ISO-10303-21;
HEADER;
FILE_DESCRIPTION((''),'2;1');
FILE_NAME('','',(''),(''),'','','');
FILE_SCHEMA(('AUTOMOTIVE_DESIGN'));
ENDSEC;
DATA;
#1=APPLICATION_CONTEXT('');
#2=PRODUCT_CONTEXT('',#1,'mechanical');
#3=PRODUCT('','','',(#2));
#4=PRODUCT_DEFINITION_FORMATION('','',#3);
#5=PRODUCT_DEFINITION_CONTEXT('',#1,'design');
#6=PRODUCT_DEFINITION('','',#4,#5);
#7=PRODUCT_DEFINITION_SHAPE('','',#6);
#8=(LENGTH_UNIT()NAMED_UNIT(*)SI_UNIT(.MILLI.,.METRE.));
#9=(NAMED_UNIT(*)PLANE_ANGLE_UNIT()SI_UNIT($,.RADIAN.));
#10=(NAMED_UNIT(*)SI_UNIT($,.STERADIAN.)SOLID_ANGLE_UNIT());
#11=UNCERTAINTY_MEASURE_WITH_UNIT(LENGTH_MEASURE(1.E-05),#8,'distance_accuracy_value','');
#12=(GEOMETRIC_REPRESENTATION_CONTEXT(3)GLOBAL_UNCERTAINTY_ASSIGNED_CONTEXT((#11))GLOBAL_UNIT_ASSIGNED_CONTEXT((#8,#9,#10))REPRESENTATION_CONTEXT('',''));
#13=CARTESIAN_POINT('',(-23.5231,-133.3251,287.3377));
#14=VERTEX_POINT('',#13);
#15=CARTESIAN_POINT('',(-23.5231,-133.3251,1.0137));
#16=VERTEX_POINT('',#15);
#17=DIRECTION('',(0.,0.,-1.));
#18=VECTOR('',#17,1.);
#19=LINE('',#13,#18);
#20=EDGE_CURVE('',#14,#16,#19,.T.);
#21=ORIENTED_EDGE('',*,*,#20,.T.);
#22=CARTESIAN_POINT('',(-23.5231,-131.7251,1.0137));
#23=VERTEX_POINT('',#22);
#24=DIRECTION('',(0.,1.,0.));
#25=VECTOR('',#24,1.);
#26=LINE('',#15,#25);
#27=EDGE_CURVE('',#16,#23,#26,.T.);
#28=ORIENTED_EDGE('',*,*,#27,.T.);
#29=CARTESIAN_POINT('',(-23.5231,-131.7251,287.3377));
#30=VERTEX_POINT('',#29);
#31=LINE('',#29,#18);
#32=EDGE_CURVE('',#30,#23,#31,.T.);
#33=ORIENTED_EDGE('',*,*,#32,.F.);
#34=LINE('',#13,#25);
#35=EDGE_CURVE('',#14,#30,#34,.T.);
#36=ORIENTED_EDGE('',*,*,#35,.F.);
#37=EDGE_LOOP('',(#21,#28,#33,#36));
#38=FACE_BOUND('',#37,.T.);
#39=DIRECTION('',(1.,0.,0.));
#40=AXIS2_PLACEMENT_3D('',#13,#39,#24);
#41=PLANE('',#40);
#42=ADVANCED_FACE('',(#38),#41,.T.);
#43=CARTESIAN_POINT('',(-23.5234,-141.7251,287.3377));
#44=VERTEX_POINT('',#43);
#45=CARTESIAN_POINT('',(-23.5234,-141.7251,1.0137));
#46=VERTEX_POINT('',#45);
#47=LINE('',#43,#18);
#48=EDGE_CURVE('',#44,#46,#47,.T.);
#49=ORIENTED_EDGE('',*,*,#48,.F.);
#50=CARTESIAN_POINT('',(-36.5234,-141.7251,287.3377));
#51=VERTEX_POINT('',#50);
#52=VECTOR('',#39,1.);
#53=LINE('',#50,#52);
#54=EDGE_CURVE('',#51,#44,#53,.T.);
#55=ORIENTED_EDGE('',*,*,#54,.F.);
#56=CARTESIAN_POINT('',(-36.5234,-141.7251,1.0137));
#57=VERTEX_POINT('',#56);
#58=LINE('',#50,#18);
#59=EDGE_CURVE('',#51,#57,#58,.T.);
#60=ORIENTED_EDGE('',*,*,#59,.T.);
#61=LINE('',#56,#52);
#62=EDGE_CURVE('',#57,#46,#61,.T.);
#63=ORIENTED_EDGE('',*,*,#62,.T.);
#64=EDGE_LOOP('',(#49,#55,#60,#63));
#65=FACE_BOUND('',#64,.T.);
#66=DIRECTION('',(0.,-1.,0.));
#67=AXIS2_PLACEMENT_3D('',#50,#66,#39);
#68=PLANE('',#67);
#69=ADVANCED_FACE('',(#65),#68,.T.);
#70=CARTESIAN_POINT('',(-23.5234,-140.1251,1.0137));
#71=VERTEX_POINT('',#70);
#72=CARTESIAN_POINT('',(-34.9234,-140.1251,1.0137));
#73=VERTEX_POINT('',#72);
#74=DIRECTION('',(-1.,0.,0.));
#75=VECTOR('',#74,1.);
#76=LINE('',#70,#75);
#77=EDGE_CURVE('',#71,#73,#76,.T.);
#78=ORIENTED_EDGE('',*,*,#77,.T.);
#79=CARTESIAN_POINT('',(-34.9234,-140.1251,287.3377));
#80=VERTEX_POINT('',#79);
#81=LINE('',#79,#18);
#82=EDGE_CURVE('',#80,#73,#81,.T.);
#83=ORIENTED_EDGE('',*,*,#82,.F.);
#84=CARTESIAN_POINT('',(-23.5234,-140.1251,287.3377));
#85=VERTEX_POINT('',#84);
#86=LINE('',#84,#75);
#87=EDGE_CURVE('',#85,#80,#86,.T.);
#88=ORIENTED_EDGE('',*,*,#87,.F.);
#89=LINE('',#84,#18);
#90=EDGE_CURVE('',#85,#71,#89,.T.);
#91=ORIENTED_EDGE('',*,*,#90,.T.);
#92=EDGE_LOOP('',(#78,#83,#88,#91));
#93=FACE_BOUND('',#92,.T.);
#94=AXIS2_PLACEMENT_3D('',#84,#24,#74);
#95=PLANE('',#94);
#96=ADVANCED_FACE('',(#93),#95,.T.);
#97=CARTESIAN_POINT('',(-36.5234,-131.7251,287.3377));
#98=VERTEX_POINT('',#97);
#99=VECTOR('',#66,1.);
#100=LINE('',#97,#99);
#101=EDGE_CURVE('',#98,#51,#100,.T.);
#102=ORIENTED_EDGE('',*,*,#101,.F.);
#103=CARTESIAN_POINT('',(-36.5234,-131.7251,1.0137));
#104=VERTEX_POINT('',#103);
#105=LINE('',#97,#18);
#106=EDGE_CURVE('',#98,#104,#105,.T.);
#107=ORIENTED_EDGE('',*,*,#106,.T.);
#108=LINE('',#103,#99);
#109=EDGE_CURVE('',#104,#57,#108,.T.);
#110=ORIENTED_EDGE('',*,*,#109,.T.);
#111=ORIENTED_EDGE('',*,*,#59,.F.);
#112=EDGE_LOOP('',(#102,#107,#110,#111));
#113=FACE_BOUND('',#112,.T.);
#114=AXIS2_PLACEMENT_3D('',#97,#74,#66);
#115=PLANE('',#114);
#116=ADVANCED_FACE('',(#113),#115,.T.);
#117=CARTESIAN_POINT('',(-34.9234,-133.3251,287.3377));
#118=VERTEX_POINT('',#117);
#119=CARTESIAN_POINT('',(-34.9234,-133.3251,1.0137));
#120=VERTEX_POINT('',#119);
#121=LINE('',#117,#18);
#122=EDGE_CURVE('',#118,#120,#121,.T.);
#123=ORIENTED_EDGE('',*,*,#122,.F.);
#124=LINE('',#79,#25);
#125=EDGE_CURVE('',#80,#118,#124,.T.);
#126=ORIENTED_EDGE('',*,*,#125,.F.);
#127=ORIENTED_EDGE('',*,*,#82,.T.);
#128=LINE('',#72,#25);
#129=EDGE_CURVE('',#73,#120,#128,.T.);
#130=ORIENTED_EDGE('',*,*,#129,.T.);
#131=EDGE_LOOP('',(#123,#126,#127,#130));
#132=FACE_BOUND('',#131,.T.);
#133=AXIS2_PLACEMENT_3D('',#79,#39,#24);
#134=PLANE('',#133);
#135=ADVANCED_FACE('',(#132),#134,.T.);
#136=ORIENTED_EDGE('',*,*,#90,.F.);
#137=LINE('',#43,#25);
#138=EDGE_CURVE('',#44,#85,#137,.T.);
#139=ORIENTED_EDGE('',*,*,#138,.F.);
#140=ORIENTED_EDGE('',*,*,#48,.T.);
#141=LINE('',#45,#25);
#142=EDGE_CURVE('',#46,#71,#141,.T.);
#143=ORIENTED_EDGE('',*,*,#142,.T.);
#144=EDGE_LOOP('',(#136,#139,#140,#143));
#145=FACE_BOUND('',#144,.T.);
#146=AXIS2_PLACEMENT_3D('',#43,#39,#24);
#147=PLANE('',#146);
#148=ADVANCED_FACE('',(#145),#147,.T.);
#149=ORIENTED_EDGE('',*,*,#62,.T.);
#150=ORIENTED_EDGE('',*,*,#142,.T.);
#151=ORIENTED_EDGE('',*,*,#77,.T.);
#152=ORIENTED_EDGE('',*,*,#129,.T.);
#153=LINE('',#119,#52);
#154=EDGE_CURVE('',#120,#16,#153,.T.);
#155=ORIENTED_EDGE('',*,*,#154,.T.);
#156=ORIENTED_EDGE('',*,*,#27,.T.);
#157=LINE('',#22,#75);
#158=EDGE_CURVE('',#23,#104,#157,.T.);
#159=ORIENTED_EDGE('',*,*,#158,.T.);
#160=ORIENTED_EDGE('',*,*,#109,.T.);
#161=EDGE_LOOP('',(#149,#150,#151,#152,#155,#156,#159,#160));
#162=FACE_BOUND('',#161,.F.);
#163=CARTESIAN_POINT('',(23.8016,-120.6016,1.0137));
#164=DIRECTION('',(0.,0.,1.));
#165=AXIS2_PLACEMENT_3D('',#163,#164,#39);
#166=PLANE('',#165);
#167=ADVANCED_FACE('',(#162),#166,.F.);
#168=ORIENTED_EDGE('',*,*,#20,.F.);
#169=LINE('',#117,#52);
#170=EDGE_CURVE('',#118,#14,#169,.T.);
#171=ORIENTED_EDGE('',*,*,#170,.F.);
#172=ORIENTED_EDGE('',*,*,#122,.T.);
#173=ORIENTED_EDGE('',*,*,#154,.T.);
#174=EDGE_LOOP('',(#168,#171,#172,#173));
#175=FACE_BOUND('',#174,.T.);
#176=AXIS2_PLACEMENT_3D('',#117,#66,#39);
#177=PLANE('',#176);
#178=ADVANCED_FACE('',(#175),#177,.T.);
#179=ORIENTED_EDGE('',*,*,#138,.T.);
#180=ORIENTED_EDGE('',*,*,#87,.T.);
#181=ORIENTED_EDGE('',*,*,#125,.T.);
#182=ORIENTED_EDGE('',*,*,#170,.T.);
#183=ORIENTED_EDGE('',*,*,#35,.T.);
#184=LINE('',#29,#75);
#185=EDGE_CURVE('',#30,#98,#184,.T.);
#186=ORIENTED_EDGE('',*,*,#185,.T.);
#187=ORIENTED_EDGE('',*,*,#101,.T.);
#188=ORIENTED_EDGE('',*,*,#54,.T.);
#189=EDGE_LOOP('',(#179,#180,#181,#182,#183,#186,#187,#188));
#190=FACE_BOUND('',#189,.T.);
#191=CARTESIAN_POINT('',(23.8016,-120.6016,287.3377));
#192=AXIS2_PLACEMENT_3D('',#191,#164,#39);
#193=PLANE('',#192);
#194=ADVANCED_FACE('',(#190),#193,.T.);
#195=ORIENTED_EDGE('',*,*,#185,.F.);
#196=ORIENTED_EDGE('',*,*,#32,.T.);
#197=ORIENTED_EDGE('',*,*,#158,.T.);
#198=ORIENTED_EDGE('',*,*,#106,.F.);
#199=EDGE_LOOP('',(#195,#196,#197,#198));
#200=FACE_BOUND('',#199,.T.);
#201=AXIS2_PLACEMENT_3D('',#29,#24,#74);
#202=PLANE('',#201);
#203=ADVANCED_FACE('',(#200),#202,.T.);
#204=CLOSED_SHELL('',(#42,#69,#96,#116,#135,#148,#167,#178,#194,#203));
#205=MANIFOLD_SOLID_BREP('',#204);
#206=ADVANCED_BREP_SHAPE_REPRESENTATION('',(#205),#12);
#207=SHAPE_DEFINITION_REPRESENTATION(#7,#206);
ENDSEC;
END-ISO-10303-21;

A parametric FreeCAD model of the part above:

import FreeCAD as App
import Part
import Sketcher
from FreeCAD import Vector


def add_polygon(sketch, points):
    """Adds a closed chain of lines whose ends are joined by coincident constraints."""
    first, n = sketch.GeometryCount, len(points)
    for a, b in zip(points, points[1:] + points[:1]):
        sketch.addGeometry(Part.LineSegment(App.Vector(*a, 0), App.Vector(*b, 0)), False)
    for i in range(n):
        sketch.addConstraint(Sketcher.Constraint("Coincident", first + i, 2, first + (i + 1) % n, 1))

doc = App.newDocument("Part")
body = doc.addObject("PartDesign::Body", "Body")

# Sketch on XY plane
sketch1 = body.newObject("Sketcher::SketchObject", "Sketch")
sketch1.AttachmentSupport = (doc.getObject("XY_Plane"), [""])
sketch1.MapMode = "FlatFace"
sketch1.AttachmentOffset = App.Placement(Vector(0, 0, 287.3377), App.Rotation())
add_polygon(sketch1, [(-23.5231, -131.7251), (-36.5234, -131.7251), (-36.5234, -141.7251), (-23.5234, -141.7251), (-23.5234, -140.1251), (-34.9234, -140.1251), (-34.9234, -133.3251), (-23.5231, -133.3251)])  # lines 0-7
sketch1.addConstraint([
    Sketcher.Constraint("Horizontal", 0),
    Sketcher.Constraint("Vertical", 1),
    Sketcher.Constraint("Horizontal", 2),
    Sketcher.Constraint("Vertical", 3),
    Sketcher.Constraint("Horizontal", 4),
    Sketcher.Constraint("Vertical", 5),
    Sketcher.Constraint("Horizontal", 6),
    Sketcher.Constraint("Vertical", 7),
    Sketcher.Constraint("Equal", 3, 7),
    Sketcher.Constraint("DistanceX", 2, 1, 2, 2, 13.0),
    Sketcher.Constraint("DistanceY", 1, 2, 1, 1, 10.0),
    Sketcher.Constraint("DistanceY", 3, 1, 3, 2, 1.6),
    Sketcher.Constraint("DistanceX", 1, 2, 4, 2, 1.6),
    Sketcher.Constraint("DistanceX", 0, 2, 0, 1, 13.0003),
    Sketcher.Constraint("DistanceY", 0, 2, -1, 1, 131.725),
    Sketcher.Constraint("DistanceX", 6, 2, -1, 1, 23.523),
])
pad1 = body.newObject("PartDesign::Pad", "Pad")
pad1.Profile = sketch1
pad1.Length = 286.324
pad1.Reversed = True

doc.recompute()
